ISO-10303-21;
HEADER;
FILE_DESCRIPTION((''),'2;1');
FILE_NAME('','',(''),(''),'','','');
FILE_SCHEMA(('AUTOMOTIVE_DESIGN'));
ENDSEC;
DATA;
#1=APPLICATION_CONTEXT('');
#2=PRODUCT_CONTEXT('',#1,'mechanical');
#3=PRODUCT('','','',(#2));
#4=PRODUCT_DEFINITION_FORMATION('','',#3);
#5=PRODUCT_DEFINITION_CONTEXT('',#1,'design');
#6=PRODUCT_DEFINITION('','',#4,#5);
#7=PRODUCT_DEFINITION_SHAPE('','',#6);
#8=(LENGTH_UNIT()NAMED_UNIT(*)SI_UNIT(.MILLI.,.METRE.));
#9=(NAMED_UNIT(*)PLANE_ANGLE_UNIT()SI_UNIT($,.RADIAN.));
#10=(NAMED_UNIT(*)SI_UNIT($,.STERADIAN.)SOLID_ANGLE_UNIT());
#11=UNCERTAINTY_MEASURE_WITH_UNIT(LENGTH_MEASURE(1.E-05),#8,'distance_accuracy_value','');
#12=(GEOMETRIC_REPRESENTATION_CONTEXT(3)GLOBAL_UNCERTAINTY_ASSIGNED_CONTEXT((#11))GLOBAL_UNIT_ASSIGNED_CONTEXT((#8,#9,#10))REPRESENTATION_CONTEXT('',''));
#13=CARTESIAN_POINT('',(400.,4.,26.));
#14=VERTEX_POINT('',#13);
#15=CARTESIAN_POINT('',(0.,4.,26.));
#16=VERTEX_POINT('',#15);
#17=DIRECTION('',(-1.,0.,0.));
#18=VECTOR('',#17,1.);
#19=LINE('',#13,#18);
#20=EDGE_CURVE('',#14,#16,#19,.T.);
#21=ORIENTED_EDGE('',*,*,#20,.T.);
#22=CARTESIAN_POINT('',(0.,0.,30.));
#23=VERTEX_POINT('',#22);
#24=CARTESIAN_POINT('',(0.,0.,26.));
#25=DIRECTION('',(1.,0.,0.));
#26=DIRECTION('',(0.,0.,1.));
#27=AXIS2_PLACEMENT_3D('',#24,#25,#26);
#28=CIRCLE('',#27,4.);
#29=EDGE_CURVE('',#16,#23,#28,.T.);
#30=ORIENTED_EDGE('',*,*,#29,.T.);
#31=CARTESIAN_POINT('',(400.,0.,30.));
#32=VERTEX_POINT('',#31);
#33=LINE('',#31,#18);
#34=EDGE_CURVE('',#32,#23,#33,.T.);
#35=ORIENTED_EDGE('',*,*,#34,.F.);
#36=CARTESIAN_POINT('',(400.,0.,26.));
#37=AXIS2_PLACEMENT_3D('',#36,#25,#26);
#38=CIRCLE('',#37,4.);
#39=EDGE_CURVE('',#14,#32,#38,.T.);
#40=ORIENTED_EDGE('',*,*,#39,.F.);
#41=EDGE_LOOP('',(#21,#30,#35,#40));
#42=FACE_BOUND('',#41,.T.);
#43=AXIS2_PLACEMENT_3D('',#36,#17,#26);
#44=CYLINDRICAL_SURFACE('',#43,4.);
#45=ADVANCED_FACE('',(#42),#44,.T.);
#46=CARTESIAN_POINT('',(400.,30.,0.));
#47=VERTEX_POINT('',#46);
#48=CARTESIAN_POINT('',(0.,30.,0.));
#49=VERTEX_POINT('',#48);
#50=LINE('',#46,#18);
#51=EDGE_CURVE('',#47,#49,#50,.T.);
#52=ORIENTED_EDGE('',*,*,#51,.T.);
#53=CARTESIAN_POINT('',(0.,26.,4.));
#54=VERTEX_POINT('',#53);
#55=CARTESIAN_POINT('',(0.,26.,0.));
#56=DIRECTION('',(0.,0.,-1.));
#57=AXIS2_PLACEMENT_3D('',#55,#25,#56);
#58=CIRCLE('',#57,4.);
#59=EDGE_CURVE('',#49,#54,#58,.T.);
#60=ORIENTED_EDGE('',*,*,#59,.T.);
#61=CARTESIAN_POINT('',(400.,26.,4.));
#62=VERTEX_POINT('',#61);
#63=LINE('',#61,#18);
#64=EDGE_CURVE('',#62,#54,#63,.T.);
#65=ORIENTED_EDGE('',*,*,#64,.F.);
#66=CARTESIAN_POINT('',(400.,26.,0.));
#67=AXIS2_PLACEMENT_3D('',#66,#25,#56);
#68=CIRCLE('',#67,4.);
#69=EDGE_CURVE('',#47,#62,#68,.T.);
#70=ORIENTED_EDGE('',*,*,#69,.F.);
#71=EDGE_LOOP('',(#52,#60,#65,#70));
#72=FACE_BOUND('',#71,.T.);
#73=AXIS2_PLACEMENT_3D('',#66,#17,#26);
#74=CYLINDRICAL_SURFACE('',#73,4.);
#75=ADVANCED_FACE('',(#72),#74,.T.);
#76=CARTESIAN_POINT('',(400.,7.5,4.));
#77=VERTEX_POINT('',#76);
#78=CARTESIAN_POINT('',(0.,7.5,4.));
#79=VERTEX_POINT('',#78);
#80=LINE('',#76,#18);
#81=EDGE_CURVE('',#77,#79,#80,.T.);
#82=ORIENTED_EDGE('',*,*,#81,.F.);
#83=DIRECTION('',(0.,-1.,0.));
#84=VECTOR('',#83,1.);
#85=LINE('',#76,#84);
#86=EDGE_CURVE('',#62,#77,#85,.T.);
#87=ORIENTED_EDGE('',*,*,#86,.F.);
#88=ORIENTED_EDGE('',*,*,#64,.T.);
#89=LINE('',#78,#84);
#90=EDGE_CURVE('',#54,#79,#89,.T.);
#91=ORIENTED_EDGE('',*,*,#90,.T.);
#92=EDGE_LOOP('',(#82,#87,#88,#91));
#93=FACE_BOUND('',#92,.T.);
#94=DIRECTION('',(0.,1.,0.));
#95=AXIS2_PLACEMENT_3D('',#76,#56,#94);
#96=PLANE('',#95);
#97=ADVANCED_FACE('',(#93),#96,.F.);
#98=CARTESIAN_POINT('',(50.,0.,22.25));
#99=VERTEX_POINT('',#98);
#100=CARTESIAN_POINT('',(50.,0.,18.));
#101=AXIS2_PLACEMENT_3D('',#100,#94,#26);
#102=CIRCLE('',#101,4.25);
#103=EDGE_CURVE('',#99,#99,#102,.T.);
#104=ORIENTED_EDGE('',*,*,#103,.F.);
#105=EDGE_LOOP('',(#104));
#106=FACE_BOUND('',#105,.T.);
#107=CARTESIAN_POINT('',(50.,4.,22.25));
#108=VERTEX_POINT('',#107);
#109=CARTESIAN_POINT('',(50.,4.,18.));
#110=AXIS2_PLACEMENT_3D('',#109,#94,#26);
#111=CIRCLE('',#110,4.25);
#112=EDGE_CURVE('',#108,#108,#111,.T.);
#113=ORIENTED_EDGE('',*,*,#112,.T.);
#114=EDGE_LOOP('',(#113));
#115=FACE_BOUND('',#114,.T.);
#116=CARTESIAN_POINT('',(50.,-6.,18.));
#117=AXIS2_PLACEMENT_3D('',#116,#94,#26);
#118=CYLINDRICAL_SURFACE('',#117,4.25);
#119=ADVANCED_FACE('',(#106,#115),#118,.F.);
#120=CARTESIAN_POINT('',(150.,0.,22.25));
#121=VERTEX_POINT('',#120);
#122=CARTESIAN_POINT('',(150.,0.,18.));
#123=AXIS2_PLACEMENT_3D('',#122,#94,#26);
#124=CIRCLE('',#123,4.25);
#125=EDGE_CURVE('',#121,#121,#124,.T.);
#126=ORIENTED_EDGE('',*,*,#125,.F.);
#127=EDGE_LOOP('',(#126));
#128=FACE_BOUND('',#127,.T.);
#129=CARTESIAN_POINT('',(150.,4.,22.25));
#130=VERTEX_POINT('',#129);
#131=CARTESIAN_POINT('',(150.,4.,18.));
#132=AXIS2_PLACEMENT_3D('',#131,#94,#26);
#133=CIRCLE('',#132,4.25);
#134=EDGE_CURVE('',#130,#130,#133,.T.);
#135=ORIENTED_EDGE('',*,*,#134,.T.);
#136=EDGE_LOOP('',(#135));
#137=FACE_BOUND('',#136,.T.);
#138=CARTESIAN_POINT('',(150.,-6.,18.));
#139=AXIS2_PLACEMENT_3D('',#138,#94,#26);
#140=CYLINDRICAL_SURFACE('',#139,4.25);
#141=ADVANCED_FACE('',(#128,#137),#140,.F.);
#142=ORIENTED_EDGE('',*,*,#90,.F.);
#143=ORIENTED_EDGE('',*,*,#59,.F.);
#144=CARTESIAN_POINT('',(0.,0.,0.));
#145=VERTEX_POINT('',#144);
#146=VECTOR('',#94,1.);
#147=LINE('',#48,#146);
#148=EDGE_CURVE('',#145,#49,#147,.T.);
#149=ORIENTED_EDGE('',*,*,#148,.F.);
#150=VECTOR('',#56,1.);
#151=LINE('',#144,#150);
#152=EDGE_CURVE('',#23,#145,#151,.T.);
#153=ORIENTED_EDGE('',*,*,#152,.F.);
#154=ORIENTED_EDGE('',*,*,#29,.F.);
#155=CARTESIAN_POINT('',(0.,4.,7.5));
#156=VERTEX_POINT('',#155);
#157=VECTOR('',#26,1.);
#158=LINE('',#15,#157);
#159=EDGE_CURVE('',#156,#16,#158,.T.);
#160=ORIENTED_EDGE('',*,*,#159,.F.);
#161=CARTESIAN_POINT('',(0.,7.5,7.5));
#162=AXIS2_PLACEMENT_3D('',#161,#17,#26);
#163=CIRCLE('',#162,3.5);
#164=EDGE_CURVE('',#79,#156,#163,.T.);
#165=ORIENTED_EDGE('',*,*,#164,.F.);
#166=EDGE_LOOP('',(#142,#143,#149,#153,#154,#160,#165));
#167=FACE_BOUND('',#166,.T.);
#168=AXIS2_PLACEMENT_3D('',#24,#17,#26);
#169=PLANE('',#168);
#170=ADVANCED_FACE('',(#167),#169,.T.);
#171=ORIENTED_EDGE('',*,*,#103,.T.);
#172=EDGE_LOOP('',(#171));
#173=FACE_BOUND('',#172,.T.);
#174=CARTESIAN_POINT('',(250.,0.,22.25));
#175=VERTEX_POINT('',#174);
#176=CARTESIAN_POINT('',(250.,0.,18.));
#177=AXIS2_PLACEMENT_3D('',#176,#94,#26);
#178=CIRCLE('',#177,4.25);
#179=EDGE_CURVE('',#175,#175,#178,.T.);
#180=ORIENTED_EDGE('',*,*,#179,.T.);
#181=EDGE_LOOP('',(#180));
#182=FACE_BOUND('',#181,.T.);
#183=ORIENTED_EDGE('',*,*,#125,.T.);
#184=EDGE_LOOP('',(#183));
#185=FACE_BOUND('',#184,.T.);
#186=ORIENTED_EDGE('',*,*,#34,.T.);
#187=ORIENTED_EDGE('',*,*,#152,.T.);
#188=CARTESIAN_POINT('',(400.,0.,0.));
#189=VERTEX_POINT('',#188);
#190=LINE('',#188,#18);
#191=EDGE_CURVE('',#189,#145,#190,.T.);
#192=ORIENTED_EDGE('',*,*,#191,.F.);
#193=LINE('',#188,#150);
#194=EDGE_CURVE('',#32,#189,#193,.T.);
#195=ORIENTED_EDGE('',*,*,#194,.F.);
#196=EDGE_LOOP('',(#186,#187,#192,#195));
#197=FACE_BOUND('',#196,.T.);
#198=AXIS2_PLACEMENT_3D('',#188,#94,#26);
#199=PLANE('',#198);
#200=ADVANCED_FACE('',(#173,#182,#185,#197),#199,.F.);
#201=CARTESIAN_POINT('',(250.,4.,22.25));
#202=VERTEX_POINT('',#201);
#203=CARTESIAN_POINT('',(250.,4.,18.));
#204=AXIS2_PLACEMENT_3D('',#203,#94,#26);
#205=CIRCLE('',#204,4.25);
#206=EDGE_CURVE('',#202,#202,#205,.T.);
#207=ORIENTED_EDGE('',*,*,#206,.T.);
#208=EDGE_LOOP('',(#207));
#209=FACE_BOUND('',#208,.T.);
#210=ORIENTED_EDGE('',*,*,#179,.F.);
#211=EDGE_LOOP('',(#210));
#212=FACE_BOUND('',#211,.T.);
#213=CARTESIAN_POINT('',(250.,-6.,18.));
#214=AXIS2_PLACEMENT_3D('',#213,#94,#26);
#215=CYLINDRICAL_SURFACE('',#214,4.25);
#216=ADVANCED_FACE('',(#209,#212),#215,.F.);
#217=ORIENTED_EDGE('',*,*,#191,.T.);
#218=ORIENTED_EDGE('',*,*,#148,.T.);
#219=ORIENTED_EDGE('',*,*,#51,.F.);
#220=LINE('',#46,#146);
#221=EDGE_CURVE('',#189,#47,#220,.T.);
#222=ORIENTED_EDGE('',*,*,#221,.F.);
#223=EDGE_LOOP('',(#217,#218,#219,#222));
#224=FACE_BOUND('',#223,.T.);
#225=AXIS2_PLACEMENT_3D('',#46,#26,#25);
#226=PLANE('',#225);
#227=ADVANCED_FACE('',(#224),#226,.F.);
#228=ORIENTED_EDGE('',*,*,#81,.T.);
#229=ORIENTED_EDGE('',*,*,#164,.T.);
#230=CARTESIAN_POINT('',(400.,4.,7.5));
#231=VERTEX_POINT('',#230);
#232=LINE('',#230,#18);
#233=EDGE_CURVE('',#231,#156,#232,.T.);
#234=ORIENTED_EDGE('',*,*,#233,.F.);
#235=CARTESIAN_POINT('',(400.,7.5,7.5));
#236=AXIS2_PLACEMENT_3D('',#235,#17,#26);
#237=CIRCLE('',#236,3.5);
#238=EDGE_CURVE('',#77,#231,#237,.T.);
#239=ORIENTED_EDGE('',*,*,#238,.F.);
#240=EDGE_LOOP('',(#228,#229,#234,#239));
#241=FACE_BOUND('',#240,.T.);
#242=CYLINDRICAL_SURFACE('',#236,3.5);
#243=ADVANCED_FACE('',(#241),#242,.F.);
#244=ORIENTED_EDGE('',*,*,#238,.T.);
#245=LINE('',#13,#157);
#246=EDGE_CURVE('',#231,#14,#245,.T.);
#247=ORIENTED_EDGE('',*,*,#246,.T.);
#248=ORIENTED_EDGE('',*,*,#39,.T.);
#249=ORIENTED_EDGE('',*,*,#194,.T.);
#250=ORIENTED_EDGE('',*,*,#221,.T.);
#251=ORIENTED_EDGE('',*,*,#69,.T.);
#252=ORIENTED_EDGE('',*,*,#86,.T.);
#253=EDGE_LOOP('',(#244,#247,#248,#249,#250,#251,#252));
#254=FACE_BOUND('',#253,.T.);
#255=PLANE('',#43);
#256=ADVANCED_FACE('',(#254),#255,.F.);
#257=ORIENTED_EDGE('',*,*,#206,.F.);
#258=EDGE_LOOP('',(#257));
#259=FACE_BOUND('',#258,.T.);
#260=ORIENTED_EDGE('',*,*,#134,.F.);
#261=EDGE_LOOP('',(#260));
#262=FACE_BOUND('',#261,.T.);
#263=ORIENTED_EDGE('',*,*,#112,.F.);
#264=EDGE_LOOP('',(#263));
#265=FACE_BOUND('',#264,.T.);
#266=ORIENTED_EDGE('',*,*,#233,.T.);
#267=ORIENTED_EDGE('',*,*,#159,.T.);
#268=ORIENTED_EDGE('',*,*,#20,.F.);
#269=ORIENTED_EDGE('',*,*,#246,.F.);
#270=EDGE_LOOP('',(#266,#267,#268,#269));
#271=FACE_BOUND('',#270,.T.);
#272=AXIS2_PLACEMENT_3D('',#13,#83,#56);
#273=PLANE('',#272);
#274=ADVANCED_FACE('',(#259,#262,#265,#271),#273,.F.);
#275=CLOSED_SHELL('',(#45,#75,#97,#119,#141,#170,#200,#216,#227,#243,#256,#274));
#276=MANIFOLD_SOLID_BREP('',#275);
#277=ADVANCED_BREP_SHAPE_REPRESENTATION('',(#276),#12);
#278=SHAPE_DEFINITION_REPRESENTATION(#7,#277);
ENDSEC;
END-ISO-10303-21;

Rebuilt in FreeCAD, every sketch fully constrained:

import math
import FreeCAD as App
import Part
import Sketcher
from FreeCAD import Vector

doc = App.newDocument("Part")
body = doc.addObject("PartDesign::Body", "Body")

# Sketch on YZ plane
sketch1 = doc.addObject("Sketcher::SketchObject", "Sketch")
body.addObject(sketch1)
sketch1.AttachmentSupport = (doc.YZ_Plane, [""])
sketch1.MapMode = "FlatFace"
sketch1.addGeometry(Part.LineSegment(Vector(0, 30, 0), Vector(0, 0, 0)), False)
sketch1.addGeometry(Part.LineSegment(Vector(0, 0, 0), Vector(30, 0, 0)), False)
sketch1.addGeometry(Part.ArcOfCircle(Part.Circle(Vector(26, 0, 0), Vector(0, 0, 1), 4), math.radians(0), math.radians(90)), False)
sketch1.addGeometry(Part.LineSegment(Vector(26, 4, 0), Vector(7.5, 4, 0)), False)
sketch1.addGeometry(Part.ArcOfCircle(Part.Circle(Vector(7.5, 7.5, 0), Vector(0, 0, 1), 3.5), math.radians(-180), math.radians(-90)), False)
sketch1.addGeometry(Part.LineSegment(Vector(4, 7.5, 0), Vector(4, 26, 0)), False)
sketch1.addGeometry(Part.ArcOfCircle(Part.Circle(Vector(0, 26, 0), Vector(0, 0, 1), 4), math.radians(0), math.radians(90)), False)
sketch1.addConstraint(Sketcher.Constraint("Coincident", 0, 2, 1, 1))
sketch1.addConstraint(Sketcher.Constraint("Coincident", 1, 2, 2, 1))
sketch1.addConstraint(Sketcher.Constraint("Tangent", 2, 2, 3, 1))
sketch1.addConstraint(Sketcher.Constraint("Tangent", 3, 2, 4, 2))
sketch1.addConstraint(Sketcher.Constraint("Tangent", 4, 1, 5, 1))
sketch1.addConstraint(Sketcher.Constraint("Tangent", 5, 2, 6, 1))
sketch1.addConstraint(Sketcher.Constraint("Coincident", 6, 2, 0, 1))
sketch1.addConstraint(Sketcher.Constraint("Vertical", 0))
sketch1.addConstraint(Sketcher.Constraint("Horizontal", 1))
sketch1.addConstraint(Sketcher.Constraint("Horizontal", 3))
sketch1.addConstraint(Sketcher.Constraint("Vertical", 5))
sketch1.addConstraint(Sketcher.Constraint("Coincident", 0, 2, -1, 1))
sketch1.addConstraint(Sketcher.Constraint("Equal", 2, 6))
sketch1.addConstraint(Sketcher.Constraint("PointOnObject", 2, 3, -1))
sketch1.addConstraint(Sketcher.Constraint("PointOnObject", 6, 3, -2))
sketch1.addConstraint(Sketcher.Constraint("Equal", 1, 0))
sketch1.addConstraint(Sketcher.Constraint("Radius", 2, 4.0))
sketch1.addConstraint(Sketcher.Constraint("Radius", 4, 3.5))
sketch1.addConstraint(Sketcher.Constraint("DistanceX", 1, 1, 1, 2, 30.0))
pad1 = doc.addObject("PartDesign::Pad", "Pad")
body.addObject(pad1)
pad1.Profile = sketch1
pad1.Length = 400

# Sketch on XZ plane
sketch2 = doc.addObject("Sketcher::SketchObject", "Sketch001")
body.addObject(sketch2)
sketch2.AttachmentSupport = (doc.XZ_Plane, [""])
sketch2.MapMode = "FlatFace"
sketch2.AttachmentOffset = App.Placement(Vector(0, 0, -4), App.Rotation())
sketch2.addGeometry(Part.Circle(Vector(50, 18, 0), Vector(0, 0, 1), 4.2), False)
sketch2.addGeometry(Part.Circle(Vector(150, 18, 0), Vector(0, 0, 1), 4.2), False)
sketch2.addGeometry(Part.Circle(Vector(250, 18, 0), Vector(0, 0, 1), 4.2), False)
sketch2.addConstraint(Sketcher.Constraint("Equal", 0, 1))
sketch2.addConstraint(Sketcher.Constraint("Equal", 1, 2))
sketch2.addConstraint(Sketcher.Constraint("Horizontal", 0, 3, 1, 3))
sketch2.addConstraint(Sketcher.Constraint("Horizontal", 1, 3, 2, 3))
sketch2.addConstraint(Sketcher.Constraint("Diameter", 0, 8.5))
sketch2.addConstraint(Sketcher.Constraint("DistanceX", -1, 1, 0, 3, 50.0))
sketch2.addConstraint(Sketcher.Constraint("DistanceY", -1, 1, 0, 3, 18.0))
sketch2.addConstraint(Sketcher.Constraint("DistanceX", -1, 1, 1, 3, 150.0))
sketch2.addConstraint(Sketcher.Constraint("DistanceX", -1, 1, 2, 3, 250.0))
pocket1 = doc.addObject("PartDesign::Pocket", "Pocket")
body.addObject(pocket1)
pocket1.Profile = sketch2
pocket1.Length = 10
pocket1.Reversed = True

doc.recompute()
